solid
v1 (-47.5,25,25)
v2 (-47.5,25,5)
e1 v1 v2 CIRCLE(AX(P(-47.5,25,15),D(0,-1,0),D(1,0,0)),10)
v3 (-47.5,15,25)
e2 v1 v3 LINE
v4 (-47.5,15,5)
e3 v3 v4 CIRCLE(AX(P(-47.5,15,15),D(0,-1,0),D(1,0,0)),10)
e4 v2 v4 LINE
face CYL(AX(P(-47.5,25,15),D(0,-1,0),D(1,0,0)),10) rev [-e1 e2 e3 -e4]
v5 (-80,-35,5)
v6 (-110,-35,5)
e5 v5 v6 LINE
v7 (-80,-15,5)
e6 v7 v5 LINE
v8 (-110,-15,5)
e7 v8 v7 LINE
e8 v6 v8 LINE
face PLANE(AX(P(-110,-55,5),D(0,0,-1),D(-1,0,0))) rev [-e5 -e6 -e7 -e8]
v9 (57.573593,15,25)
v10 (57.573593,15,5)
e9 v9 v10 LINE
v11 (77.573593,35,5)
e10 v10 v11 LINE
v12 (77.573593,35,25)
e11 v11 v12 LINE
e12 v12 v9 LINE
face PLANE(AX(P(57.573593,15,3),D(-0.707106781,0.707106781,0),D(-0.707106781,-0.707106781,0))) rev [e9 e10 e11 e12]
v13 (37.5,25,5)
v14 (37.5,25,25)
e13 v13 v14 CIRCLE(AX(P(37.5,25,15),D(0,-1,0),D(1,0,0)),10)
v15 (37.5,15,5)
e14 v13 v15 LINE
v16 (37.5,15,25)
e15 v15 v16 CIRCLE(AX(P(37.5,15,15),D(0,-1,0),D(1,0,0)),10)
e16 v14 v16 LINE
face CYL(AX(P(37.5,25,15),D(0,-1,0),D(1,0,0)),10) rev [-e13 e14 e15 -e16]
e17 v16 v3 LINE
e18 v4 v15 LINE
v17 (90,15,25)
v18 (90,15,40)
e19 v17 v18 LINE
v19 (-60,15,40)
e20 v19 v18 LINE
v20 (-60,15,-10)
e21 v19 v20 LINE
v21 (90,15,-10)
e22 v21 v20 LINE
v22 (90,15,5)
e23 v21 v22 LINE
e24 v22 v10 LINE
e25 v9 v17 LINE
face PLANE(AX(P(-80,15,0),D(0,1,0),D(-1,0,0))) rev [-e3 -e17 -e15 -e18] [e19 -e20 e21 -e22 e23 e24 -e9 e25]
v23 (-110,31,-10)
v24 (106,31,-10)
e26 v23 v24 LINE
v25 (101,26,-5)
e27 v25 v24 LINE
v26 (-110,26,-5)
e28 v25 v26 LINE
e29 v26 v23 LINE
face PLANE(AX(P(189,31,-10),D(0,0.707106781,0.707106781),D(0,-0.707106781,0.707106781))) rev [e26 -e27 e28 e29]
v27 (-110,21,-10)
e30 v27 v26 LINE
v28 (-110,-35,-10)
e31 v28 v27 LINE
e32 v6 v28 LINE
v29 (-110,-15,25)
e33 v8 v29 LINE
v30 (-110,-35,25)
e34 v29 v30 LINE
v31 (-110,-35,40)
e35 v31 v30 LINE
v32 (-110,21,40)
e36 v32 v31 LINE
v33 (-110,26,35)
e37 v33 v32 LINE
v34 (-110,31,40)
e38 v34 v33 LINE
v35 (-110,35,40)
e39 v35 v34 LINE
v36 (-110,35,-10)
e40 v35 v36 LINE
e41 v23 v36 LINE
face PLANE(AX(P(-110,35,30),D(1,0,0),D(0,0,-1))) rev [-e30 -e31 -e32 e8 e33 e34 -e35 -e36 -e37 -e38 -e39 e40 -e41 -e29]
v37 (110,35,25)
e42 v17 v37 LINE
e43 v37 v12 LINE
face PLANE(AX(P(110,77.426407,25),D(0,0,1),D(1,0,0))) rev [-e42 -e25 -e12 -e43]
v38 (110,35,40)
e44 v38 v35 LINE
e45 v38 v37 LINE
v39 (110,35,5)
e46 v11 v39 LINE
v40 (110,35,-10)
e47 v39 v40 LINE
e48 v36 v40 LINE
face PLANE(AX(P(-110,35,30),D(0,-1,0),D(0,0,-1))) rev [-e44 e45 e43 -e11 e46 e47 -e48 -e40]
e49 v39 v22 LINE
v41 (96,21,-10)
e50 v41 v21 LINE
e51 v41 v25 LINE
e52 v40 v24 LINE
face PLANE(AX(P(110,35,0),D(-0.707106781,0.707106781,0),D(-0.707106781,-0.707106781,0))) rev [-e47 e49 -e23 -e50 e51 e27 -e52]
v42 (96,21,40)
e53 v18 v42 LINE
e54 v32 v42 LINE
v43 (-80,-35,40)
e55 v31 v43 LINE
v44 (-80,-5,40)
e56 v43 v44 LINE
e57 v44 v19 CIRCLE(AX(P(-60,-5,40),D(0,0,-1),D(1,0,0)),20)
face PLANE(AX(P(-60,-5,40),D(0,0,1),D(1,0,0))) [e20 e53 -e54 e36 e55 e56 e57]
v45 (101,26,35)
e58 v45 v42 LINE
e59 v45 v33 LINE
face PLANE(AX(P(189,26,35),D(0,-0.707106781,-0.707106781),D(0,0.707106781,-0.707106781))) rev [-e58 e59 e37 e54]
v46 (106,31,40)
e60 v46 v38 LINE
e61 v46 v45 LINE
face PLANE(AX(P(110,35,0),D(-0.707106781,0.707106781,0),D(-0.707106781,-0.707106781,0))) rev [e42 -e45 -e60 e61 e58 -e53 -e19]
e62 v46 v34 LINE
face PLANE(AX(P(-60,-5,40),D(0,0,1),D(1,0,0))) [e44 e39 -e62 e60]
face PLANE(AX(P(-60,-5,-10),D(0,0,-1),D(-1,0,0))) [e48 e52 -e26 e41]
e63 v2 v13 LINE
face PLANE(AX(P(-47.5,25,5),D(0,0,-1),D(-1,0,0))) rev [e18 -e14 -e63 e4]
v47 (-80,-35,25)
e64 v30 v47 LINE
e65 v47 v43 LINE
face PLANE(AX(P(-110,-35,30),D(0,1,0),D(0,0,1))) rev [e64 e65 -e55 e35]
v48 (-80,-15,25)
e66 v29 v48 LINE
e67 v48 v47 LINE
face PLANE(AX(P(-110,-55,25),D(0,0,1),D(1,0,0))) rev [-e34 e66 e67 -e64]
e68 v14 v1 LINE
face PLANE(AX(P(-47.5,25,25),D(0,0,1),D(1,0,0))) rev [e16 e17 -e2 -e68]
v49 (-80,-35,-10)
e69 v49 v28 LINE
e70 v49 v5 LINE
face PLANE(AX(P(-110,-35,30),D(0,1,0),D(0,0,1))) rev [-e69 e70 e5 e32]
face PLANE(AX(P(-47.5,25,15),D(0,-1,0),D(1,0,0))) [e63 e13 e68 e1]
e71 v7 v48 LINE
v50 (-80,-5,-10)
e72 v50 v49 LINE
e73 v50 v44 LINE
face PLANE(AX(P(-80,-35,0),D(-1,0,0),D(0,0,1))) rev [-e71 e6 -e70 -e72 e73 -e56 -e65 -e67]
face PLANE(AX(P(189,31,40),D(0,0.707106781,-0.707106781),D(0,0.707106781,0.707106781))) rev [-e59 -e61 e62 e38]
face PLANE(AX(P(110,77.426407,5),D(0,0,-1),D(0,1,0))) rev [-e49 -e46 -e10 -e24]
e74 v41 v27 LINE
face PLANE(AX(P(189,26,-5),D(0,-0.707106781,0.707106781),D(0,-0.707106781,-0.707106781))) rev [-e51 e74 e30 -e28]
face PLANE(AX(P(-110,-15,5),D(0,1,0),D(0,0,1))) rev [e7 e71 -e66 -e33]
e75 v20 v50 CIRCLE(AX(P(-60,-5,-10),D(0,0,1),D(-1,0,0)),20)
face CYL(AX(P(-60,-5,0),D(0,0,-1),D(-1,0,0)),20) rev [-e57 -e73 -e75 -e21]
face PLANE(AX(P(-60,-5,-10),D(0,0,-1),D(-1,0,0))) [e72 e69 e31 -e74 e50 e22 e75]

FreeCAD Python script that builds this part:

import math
import FreeCAD as App
import Part
import Sketcher


def edges_at(feature, points):
    """Names of the edges that pass closest to the given points."""
    edges = feature.Shape.Edges
    near = lambda p: min(range(len(edges)), key=lambda i: edges[i].distToShape(Part.Vertex(*p))[0])
    return sorted({f"Edge{near(p) + 1}" for p in points})


def add_polygon(sketch, points):
    """Adds a closed chain of lines whose ends are joined by coincident constraints."""
    first, n = sketch.GeometryCount, len(points)
    for a, b in zip(points, points[1:] + points[:1]):
        sketch.addGeometry(Part.LineSegment(App.Vector(*a, 0), App.Vector(*b, 0)), False)
    for i in range(n):
        sketch.addConstraint(Sketcher.Constraint("Coincident", first + i, 2, first + (i + 1) % n, 1))

doc = App.newDocument("Part")
params = doc.addObject("Spreadsheet::Sheet", "Params")
for row, (alias, value) in enumerate([
    ("sketch1_width", "220 mm"),
    ("sketch1_height", "70 mm"),
    ("pad1_length", "30 mm"),
    ("sketch2_width", "190 mm"),
    ("sketch2_height", "50 mm"),
    ("pocket1_length", "30 mm"),
    ("sketch3_width", "40 mm"),
    ("sketch3_height", "20 mm"),
    ("pocket2_length", "30 mm"),
    ("sketch4_width", "20 mm"),
    ("pocket3_length", "30 mm"),
    ("sketch5_width", "20 mm"),
    ("sketch5_height", "60 mm"),
    ("pocket4_length", "30 mm"),
    ("sketch6_width", "20 mm"),
    ("pocket5_length", "30 mm"),
    ("sketch7_width", "20 mm"),
    ("pocket6_length", "10 mm"),
    ("fillet_radius", "20 mm"),
    ("sketch8_width", "20 mm"),
    ("pad2_length", "22 mm"),
    ("sketch9_radius", "20 mm"),
    ("sketch9_width", "220 mm"),
    ("sketch9_width2", "30 mm"),
    ("sketch9_width3", "150 mm"),
    ("sketch9_height", "70 mm"),
    ("pad3_length", "10 mm"),
    ("sketch10_radius", "20 mm"),
    ("sketch10_width", "220 mm"),
    ("sketch10_width2", "150 mm"),
    ("sketch10_width3", "30 mm"),
    ("sketch10_height", "70 mm"),
    ("pad4_length", "10 mm"),
    ("sketch11_radius", "10 mm"),
    ("sketch11_width", "85 mm"),
    ("pocket7_length", "10 mm"),
    ("sketch12_width", "10 mm"),
    ("pocket8_length", "299 mm"),
], start=1):
    params.set(f"A{row}", alias)
    params.set(f"B{row}", "=" + value)
    params.setAlias(f"B{row}", alias)

body = doc.addObject("PartDesign::Body", "Body")

sketch1 = body.newObject("Sketcher::SketchObject", "Sketch")
sketch1.AttachmentSupport = (doc.getObject("XY_Plane"), [""])
sketch1.MapMode = "FlatFace"
add_polygon(sketch1, [(-110, 35), (-110, -35), (110, -35), (110, 35)])
sketch1.addConstraint([
    Sketcher.Constraint("Vertical", 0),
    Sketcher.Constraint("Horizontal", 1),
    Sketcher.Constraint("Vertical", 2),
    Sketcher.Constraint("Horizontal", 3),
    Sketcher.Constraint("Symmetric", 0, 2, 2, 2, -1, 1),
    Sketcher.Constraint("DistanceX", 1, 1, 1, 2, 220.0),
    Sketcher.Constraint("DistanceY", 0, 2, 0, 1, 70.0),
])
sketch1.setExpression("Constraints[9]", "Params.sketch1_width")
sketch1.setExpression("Constraints[10]", "Params.sketch1_height")
pad1 = body.newObject("PartDesign::Pad", "Pad")
pad1.Profile = sketch1
pad1.setExpression("Length", "Params.pad1_length")

sketch2 = body.newObject("Sketcher::SketchObject", "Sketch001")
sketch2.AttachmentSupport = (doc.getObject("XY_Plane"), [""])
sketch2.MapMode = "FlatFace"
sketch2.AttachmentOffset = App.Placement(App.Vector(0, 0, 30), App.Rotation())
add_polygon(sketch2, [(-80, 15), (-80, -35), (110, -35), (110, 15)])
sketch2.addConstraint([
    Sketcher.Constraint("Vertical", 0),
    Sketcher.Constraint("Horizontal", 1),
    Sketcher.Constraint("Vertical", 2),
    Sketcher.Constraint("Horizontal", 3),
    Sketcher.Constraint("DistanceX", 1, 1, 1, 2, 190.0),
    Sketcher.Constraint("DistanceY", 0, 2, 0, 1, 50.0),
    Sketcher.Constraint("DistanceX", 0, 2, -1, 1, 80.0),
    Sketcher.Constraint("DistanceY", 0, 2, -1, 1, 35.0),
])
sketch2.setExpression("Constraints[8]", "Params.sketch2_width")
sketch2.setExpression("Constraints[9]", "Params.sketch2_height")
pocket1 = body.newObject("PartDesign::Pocket", "Pocket")
pocket1.Profile = sketch2
pocket1.setExpression("Length", "Params.pocket1_length")

sketch3 = body.newObject("Sketcher::SketchObject", "Sketch002")
sketch3.AttachmentSupport = (doc.getObject("YZ_Plane"), [""])
sketch3.MapMode = "FlatFace"
sketch3.AttachmentOffset = App.Placement(App.Vector(0, 0, -80), App.Rotation())
add_polygon(sketch3, [(-15, 25), (-55, 25), (-55, 5), (-15, 5)])
sketch3.addConstraint([
    Sketcher.Constraint("Horizontal", 0),
    Sketcher.Constraint("Vertical", 1),
    Sketcher.Constraint("Horizontal", 2),
    Sketcher.Constraint("Vertical", 3),
    Sketcher.Constraint("DistanceX", 0, 2, 0, 1, 40.0),
    Sketcher.Constraint("DistanceY", 1, 2, 1, 1, 20.0),
    Sketcher.Constraint("DistanceX", 0, 2, -1, 1, 55.0),
    Sketcher.Constraint("DistanceY", -1, 1, 0, 2, 25.0),
])
sketch3.setExpression("Constraints[8]", "Params.sketch3_width")
sketch3.setExpression("Constraints[9]", "Params.sketch3_height")
pocket2 = body.newObject("PartDesign::Pocket", "Pocket001")
pocket2.Profile = sketch3
pocket2.setExpression("Length", "Params.pocket2_length")

sketch4 = body.newObject("Sketcher::SketchObject", "Sketch003")
sketch4.AttachmentSupport = (doc.getObject("XY_Plane"), [""])
sketch4.MapMode = "FlatFace"
sketch4.AttachmentOffset = App.Placement(App.Vector(0, 0, 30), App.Rotation())
add_polygon(sketch4, [(110, 35), (90, 15), (110, 15)])
sketch4.addConstraint([
    Sketcher.Constraint("Horizontal", 1),
    Sketcher.Constraint("Vertical", 2),
    Sketcher.Constraint("Equal", 1, 2),
    Sketcher.Constraint("DistanceX", 1, 1, 1, 2, 20.0),
    Sketcher.Constraint("DistanceX", -1, 1, 0, 2, 90.0),
    Sketcher.Constraint("DistanceY", -1, 1, 0, 2, 15.0),
])
sketch4.setExpression("Constraints[6]", "Params.sketch4_width")
pocket3 = body.newObject("PartDesign::Pocket", "Pocket002")
pocket3.Profile = sketch4
pocket3.setExpression("Length", "Params.pocket3_length")

sketch5 = body.newObject("Sketcher::SketchObject", "Sketch004")
sketch5.Placement = App.Placement(App.Vector(37.5, -37.5, 0), App.Rotation(App.Vector(0, 0, -1), App.Vector(0.707106781, 0.707106781, 0), App.Vector(0.707106781, -0.707106781, 0), "ZXY"))
add_polygon(sketch5, [(-25, 133), (-25, 73), (-5, 73), (-5, 133)])
sketch5.addConstraint([
    Sketcher.Constraint("Vertical", 0),
    Sketcher.Constraint("Horizontal", 1),
    Sketcher.Constraint("Vertical", 2),
    Sketcher.Constraint("Horizontal", 3),
    Sketcher.Constraint("DistanceX", 1, 1, 1, 2, 20.0),
    Sketcher.Constraint("DistanceY", 0, 2, 0, 1, 60.0),
    Sketcher.Constraint("DistanceX", 0, 2, -1, 1, 25.0),
    Sketcher.Constraint("DistanceY", -1, 1, 0, 2, 72.530483),
])
sketch5.setExpression("Constraints[8]", "Params.sketch5_width")
sketch5.setExpression("Constraints[9]", "Params.sketch5_height")
pocket4 = body.newObject("PartDesign::Pocket", "Pocket003")
pocket4.Profile = sketch5
pocket4.setExpression("Length", "Params.pocket4_length")

sketch6 = body.newObject("Sketcher::SketchObject", "Sketch005")
sketch6.AttachmentSupport = (doc.getObject("XZ_Plane"), [""])
sketch6.MapMode = "FlatFace"
sketch6.AttachmentOffset = App.Placement(App.Vector(0, 0, -35), App.Rotation())
add_polygon(sketch6, [(68, 5), (68, 25), (88, 25), (88, 5)])
sketch6.addConstraint([
    Sketcher.Constraint("Vertical", 0),
    Sketcher.Constraint("Horizontal", 1),
    Sketcher.Constraint("Vertical", 2),
    Sketcher.Constraint("Horizontal", 3),
    Sketcher.Constraint("Equal", 3, 0),
    Sketcher.Constraint("DistanceX", 1, 1, 1, 2, 20.0),
    Sketcher.Constraint("DistanceY", -1, 1, 0, 2, 25.0),
    Sketcher.Constraint("DistanceX", -1, 1, 0, 2, 67.573593),
])
sketch6.setExpression("Constraints[9]", "Params.sketch6_width")
pocket5 = body.newObject("PartDesign::Pocket", "Pocket004")
pocket5.Profile = sketch6
pocket5.setExpression("Length", "Params.pocket5_length")
pocket5.Reversed = True

sketch7 = body.newObject("Sketcher::SketchObject", "Sketch006")
sketch7.AttachmentSupport = (doc.getObject("YZ_Plane"), [""])
sketch7.MapMode = "FlatFace"
sketch7.AttachmentOffset = App.Placement(App.Vector(0, 0, 67.573593), App.Rotation())
add_polygon(sketch7, [(35, 25), (15, 25), (15, 5), (35, 5)])
sketch7.addConstraint([
    Sketcher.Constraint("Horizontal", 0),
    Sketcher.Constraint("Vertical", 1),
    Sketcher.Constraint("Horizontal", 2),
    Sketcher.Constraint("Vertical", 3),
    Sketcher.Constraint("Equal", 2, 1),
    Sketcher.Constraint("DistanceX", 0, 2, 0, 1, 20.0),
    Sketcher.Constraint("DistanceX", -1, 1, 0, 2, 15.0),
    Sketcher.Constraint("DistanceY", -1, 1, 0, 2, 25.0),
])
sketch7.setExpression("Constraints[9]", "Params.sketch7_width")
pocket6 = body.newObject("PartDesign::Pocket", "Pocket005")
pocket6.Profile = sketch7
pocket6.setExpression("Length", "Params.pocket6_length")
doc.recompute()

fillet = body.newObject("PartDesign::Fillet", "Fillet")
fillet.Base = (pocket6, edges_at(pocket6, [(-80, 15, 15)]))
fillet.setExpression("Radius", "Params.fillet_radius")

sketch8 = body.newObject("Sketcher::SketchObject", "Sketch007")
sketch8.AttachmentSupport = (doc.getObject("XY_Plane"), [""])
sketch8.MapMode = "FlatFace"
sketch8.AttachmentOffset = App.Placement(App.Vector(0, 0, 25), App.Rotation())
add_polygon(sketch8, [(78, 35), (58, 15), (58, 35)])
sketch8.addConstraint([
    Sketcher.Constraint("Vertical", 1),
    Sketcher.Constraint("Horizontal", 2),
    Sketcher.Constraint("Equal", 2, 1),
    Sketcher.Constraint("DistanceX", 2, 1, 2, 2, 20.0),
    Sketcher.Constraint("DistanceY", -1, 1, 0, 2, 15.0),
    Sketcher.Constraint("DistanceX", -1, 1, 0, 2, 57.573593),
])
sketch8.setExpression("Constraints[6]", "Params.sketch8_width")
pad2 = body.newObject("PartDesign::Pad", "Pad001")
pad2.Profile = sketch8
pad2.setExpression("Length", "Params.pad2_length")
pad2.Reversed = True

sketch9 = body.newObject("Sketcher::SketchObject", "Sketch008")
sketch9.AttachmentSupport = (doc.getObject("XY_Plane"), [""])
sketch9.MapMode = "FlatFace"
sketch9.AttachmentOffset = App.Placement(App.Vector(0, 0, 30), App.Rotation())
sketch9.addGeometry([
    Part.LineSegment(App.Vector(90, 15, 0), App.Vector(110, 35, 0)),
    Part.LineSegment(App.Vector(110, 35, 0), App.Vector(-110, 35, 0)),
    Part.LineSegment(App.Vector(-110, 35, 0), App.Vector(-110, -35, 0)),
    Part.LineSegment(App.Vector(-110, -35, 0), App.Vector(-80, -35, 0)),
    Part.LineSegment(App.Vector(-80, -35, 0), App.Vector(-80, -5, 0)),
    Part.ArcOfCircle(Part.Circle(App.Vector(-60, -5, 0), App.Vector(0, 0, 1), 20), math.radians(90), math.radians(180)),
    Part.LineSegment(App.Vector(-60, 15, 0), App.Vector(90, 15, 0)),
], False)
sketch9.addConstraint([
    Sketcher.Constraint("Coincident", 0, 2, 1, 1),
    Sketcher.Constraint("Coincident", 1, 2, 2, 1),
    Sketcher.Constraint("Coincident", 2, 2, 3, 1),
    Sketcher.Constraint("Coincident", 3, 2, 4, 1),
    Sketcher.Constraint("Tangent", 4, 2, 5, 2),
    Sketcher.Constraint("Tangent", 5, 1, 6, 1),
    Sketcher.Constraint("Coincident", 6, 2, 0, 1),
    Sketcher.Constraint("Horizontal", 1),
    Sketcher.Constraint("Vertical", 2),
    Sketcher.Constraint("Horizontal", 3),
    Sketcher.Constraint("Vertical", 4),
    Sketcher.Constraint("Horizontal", 6),
    Sketcher.Constraint("Symmetric", 0, 2, 2, 2, -1, 1),
    Sketcher.Constraint("Equal", 3, 4),
    Sketcher.Constraint("Radius", 5, 20.0),
    Sketcher.Constraint("DistanceX", 1, 2, 1, 1, 220.0),
    Sketcher.Constraint("DistanceX", 3, 1, 3, 2, 30.0),
    Sketcher.Constraint("DistanceX", 6, 1, 6, 2, 150.0),
    Sketcher.Constraint("DistanceY", 2, 2, 2, 1, 70.0),
])
sketch9.setExpression("Constraints[14]", "Params.sketch9_radius")
sketch9.setExpression("Constraints[15]", "Params.sketch9_width")
sketch9.setExpression("Constraints[16]", "Params.sketch9_width2")
sketch9.setExpression("Constraints[17]", "Params.sketch9_width3")
sketch9.setExpression("Constraints[18]", "Params.sketch9_height")
pad3 = body.newObject("PartDesign::Pad", "Pad002")
pad3.Profile = sketch9
pad3.setExpression("Length", "Params.pad3_length")

sketch10 = body.newObject("Sketcher::SketchObject", "Sketch009")
sketch10.AttachmentSupport = (doc.getObject("XY_Plane"), [""])
sketch10.MapMode = "FlatFace"
sketch10.AttachmentOffset = App.Placement(App.Vector(0, 0, -10), App.Rotation())
sketch10.addGeometry([
    Part.LineSegment(App.Vector(-110, 35, 0), App.Vector(110, 35, 0)),
    Part.LineSegment(App.Vector(110, 35, 0), App.Vector(90, 15, 0)),
    Part.LineSegment(App.Vector(90, 15, 0), App.Vector(-60, 15, 0)),
    Part.ArcOfCircle(Part.Circle(App.Vector(-60, -5, 0), App.Vector(0, 0, 1), 20), math.radians(90), math.radians(180)),
    Part.LineSegment(App.Vector(-80, -5, 0), App.Vector(-80, -35, 0)),
    Part.LineSegment(App.Vector(-80, -35, 0), App.Vector(-110, -35, 0)),
    Part.LineSegment(App.Vector(-110, -35, 0), App.Vector(-110, 35, 0)),
], False)
sketch10.addConstraint([
    Sketcher.Constraint("Coincident", 0, 2, 1, 1),
    Sketcher.Constraint("Coincident", 1, 2, 2, 1),
    Sketcher.Constraint("Tangent", 2, 2, 3, 1),
    Sketcher.Constraint("Tangent", 3, 2, 4, 1),
    Sketcher.Constraint("Coincident", 4, 2, 5, 1),
    Sketcher.Constraint("Coincident", 5, 2, 6, 1),
    Sketcher.Constraint("Coincident", 6, 2, 0, 1),
    Sketcher.Constraint("Horizontal", 0),
    Sketcher.Constraint("Horizontal", 2),
    Sketcher.Constraint("Vertical", 4),
    Sketcher.Constraint("Horizontal", 5),
    Sketcher.Constraint("Vertical", 6),
    Sketcher.Constraint("Symmetric", 0, 2, 5, 2, -1, 1),
    Sketcher.Constraint("Equal", 5, 4),
    Sketcher.Constraint("Radius", 3, 20.0),
    Sketcher.Constraint("DistanceX", 0, 1, 0, 2, 220.0),
    Sketcher.Constraint("DistanceX", 2, 2, 2, 1, 150.0),
    Sketcher.Constraint("DistanceX", 5, 2, 5, 1, 30.0),
    Sketcher.Constraint("DistanceY", 6, 1, 6, 2, 70.0),
])
sketch10.setExpression("Constraints[14]", "Params.sketch10_radius")
sketch10.setExpression("Constraints[15]", "Params.sketch10_width")
sketch10.setExpression("Constraints[16]", "Params.sketch10_width2")
sketch10.setExpression("Constraints[17]", "Params.sketch10_width3")
sketch10.setExpression("Constraints[18]", "Params.sketch10_height")
pad4 = body.newObject("PartDesign::Pad", "Pad003")
pad4.Profile = sketch10
pad4.setExpression("Length", "Params.pad4_length")

sketch11 = body.newObject("Sketcher::SketchObject", "Sketch010")
sketch11.AttachmentSupport = (doc.getObject("XZ_Plane"), [""])
sketch11.MapMode = "FlatFace"
sketch11.AttachmentOffset = App.Placement(App.Vector(0, 0, -15), App.Rotation())
sketch11.addGeometry([
    Part.LineSegment(App.Vector(38, 25, 0), App.Vector(-48, 25, 0)),
    Part.ArcOfCircle(Part.Circle(App.Vector(-48, 15, 0), App.Vector(0, 0, 1), 10), math.radians(90), math.radians(270)),
    Part.LineSegment(App.Vector(-48, 5, 0), App.Vector(38, 5, 0)),
    Part.ArcOfCircle(Part.Circle(App.Vector(38, 15, 0), App.Vector(0, 0, 1), 10), math.radians(-90), math.radians(90)),
], False)
sketch11.addConstraint([
    Sketcher.Constraint("Tangent", 0, 2, 1, 1),
    Sketcher.Constraint("Tangent", 1, 2, 2, 1),
    Sketcher.Constraint("Tangent", 2, 2, 3, 1),
    Sketcher.Constraint("Tangent", 3, 2, 0, 1),
    Sketcher.Constraint("Horizontal", 0),
    Sketcher.Constraint("Horizontal", 2),
    Sketcher.Constraint("Radius", 1, 10.0),
    Sketcher.Constraint("DistanceX", 0, 2, 0, 1, 85.0),
    Sketcher.Constraint("DistanceY", -1, 1, 1, 3, 15.0),
    Sketcher.Constraint("DistanceX", 1, 3, -1, 1, 47.5),
])
sketch11.setExpression("Constraints[6]", "Params.sketch11_radius")
sketch11.setExpression("Constraints[7]", "Params.sketch11_width")
pocket7 = body.newObject("PartDesign::Pocket", "Pocket006")
pocket7.Profile = sketch11
pocket7.setExpression("Length", "Params.pocket7_length")

sketch12 = body.newObject("Sketcher::SketchObject", "Sketch011")
sketch12.AttachmentSupport = (doc.getObject("YZ_Plane"), [""])
sketch12.MapMode = "FlatFace"
sketch12.AttachmentOffset = App.Placement(App.Vector(0, 0, -110), App.Rotation())
add_polygon(sketch12, [(26, -5), (31, -10), (21, -10)])
add_polygon(sketch12, [(31, 40), (26, 35), (21, 40)])
sketch12.addConstraint([
    Sketcher.Constraint("Horizontal", 1),
    Sketcher.Constraint("Horizontal", 5),
    Sketcher.Constraint("Perpendicular", 0, 2),
    Sketcher.Constraint("Parallel", 2, 3),
    Sketcher.Constraint("Perpendicular", 3, 4),
    Sketcher.Constraint("Vertical", 2, 2, 3, 2),
    Sketcher.Constraint("Vertical", 1, 2, 4, 2),
    Sketcher.Constraint("Vertical", 0, 2, 5, 2),
    Sketcher.Constraint("DistanceX", 1, 2, 1, 1, 10.0),
    Sketcher.Constraint("DistanceX", -1, 1, 0, 2, 31.0),
    Sketcher.Constraint("DistanceY", 0, 2, -1, 1, 10.0),
    Sketcher.Constraint("DistanceY", -1, 1, 3, 2, 35.0),
])
sketch12.setExpression("Constraints[14]", "Params.sketch12_width")
pocket8 = body.newObject("PartDesign::Pocket", "Pocket007")
pocket8.Profile = sketch12
pocket8.setExpression("Length", "Params.pocket8_length")
pocket8.Reversed = True

doc.recompute()
